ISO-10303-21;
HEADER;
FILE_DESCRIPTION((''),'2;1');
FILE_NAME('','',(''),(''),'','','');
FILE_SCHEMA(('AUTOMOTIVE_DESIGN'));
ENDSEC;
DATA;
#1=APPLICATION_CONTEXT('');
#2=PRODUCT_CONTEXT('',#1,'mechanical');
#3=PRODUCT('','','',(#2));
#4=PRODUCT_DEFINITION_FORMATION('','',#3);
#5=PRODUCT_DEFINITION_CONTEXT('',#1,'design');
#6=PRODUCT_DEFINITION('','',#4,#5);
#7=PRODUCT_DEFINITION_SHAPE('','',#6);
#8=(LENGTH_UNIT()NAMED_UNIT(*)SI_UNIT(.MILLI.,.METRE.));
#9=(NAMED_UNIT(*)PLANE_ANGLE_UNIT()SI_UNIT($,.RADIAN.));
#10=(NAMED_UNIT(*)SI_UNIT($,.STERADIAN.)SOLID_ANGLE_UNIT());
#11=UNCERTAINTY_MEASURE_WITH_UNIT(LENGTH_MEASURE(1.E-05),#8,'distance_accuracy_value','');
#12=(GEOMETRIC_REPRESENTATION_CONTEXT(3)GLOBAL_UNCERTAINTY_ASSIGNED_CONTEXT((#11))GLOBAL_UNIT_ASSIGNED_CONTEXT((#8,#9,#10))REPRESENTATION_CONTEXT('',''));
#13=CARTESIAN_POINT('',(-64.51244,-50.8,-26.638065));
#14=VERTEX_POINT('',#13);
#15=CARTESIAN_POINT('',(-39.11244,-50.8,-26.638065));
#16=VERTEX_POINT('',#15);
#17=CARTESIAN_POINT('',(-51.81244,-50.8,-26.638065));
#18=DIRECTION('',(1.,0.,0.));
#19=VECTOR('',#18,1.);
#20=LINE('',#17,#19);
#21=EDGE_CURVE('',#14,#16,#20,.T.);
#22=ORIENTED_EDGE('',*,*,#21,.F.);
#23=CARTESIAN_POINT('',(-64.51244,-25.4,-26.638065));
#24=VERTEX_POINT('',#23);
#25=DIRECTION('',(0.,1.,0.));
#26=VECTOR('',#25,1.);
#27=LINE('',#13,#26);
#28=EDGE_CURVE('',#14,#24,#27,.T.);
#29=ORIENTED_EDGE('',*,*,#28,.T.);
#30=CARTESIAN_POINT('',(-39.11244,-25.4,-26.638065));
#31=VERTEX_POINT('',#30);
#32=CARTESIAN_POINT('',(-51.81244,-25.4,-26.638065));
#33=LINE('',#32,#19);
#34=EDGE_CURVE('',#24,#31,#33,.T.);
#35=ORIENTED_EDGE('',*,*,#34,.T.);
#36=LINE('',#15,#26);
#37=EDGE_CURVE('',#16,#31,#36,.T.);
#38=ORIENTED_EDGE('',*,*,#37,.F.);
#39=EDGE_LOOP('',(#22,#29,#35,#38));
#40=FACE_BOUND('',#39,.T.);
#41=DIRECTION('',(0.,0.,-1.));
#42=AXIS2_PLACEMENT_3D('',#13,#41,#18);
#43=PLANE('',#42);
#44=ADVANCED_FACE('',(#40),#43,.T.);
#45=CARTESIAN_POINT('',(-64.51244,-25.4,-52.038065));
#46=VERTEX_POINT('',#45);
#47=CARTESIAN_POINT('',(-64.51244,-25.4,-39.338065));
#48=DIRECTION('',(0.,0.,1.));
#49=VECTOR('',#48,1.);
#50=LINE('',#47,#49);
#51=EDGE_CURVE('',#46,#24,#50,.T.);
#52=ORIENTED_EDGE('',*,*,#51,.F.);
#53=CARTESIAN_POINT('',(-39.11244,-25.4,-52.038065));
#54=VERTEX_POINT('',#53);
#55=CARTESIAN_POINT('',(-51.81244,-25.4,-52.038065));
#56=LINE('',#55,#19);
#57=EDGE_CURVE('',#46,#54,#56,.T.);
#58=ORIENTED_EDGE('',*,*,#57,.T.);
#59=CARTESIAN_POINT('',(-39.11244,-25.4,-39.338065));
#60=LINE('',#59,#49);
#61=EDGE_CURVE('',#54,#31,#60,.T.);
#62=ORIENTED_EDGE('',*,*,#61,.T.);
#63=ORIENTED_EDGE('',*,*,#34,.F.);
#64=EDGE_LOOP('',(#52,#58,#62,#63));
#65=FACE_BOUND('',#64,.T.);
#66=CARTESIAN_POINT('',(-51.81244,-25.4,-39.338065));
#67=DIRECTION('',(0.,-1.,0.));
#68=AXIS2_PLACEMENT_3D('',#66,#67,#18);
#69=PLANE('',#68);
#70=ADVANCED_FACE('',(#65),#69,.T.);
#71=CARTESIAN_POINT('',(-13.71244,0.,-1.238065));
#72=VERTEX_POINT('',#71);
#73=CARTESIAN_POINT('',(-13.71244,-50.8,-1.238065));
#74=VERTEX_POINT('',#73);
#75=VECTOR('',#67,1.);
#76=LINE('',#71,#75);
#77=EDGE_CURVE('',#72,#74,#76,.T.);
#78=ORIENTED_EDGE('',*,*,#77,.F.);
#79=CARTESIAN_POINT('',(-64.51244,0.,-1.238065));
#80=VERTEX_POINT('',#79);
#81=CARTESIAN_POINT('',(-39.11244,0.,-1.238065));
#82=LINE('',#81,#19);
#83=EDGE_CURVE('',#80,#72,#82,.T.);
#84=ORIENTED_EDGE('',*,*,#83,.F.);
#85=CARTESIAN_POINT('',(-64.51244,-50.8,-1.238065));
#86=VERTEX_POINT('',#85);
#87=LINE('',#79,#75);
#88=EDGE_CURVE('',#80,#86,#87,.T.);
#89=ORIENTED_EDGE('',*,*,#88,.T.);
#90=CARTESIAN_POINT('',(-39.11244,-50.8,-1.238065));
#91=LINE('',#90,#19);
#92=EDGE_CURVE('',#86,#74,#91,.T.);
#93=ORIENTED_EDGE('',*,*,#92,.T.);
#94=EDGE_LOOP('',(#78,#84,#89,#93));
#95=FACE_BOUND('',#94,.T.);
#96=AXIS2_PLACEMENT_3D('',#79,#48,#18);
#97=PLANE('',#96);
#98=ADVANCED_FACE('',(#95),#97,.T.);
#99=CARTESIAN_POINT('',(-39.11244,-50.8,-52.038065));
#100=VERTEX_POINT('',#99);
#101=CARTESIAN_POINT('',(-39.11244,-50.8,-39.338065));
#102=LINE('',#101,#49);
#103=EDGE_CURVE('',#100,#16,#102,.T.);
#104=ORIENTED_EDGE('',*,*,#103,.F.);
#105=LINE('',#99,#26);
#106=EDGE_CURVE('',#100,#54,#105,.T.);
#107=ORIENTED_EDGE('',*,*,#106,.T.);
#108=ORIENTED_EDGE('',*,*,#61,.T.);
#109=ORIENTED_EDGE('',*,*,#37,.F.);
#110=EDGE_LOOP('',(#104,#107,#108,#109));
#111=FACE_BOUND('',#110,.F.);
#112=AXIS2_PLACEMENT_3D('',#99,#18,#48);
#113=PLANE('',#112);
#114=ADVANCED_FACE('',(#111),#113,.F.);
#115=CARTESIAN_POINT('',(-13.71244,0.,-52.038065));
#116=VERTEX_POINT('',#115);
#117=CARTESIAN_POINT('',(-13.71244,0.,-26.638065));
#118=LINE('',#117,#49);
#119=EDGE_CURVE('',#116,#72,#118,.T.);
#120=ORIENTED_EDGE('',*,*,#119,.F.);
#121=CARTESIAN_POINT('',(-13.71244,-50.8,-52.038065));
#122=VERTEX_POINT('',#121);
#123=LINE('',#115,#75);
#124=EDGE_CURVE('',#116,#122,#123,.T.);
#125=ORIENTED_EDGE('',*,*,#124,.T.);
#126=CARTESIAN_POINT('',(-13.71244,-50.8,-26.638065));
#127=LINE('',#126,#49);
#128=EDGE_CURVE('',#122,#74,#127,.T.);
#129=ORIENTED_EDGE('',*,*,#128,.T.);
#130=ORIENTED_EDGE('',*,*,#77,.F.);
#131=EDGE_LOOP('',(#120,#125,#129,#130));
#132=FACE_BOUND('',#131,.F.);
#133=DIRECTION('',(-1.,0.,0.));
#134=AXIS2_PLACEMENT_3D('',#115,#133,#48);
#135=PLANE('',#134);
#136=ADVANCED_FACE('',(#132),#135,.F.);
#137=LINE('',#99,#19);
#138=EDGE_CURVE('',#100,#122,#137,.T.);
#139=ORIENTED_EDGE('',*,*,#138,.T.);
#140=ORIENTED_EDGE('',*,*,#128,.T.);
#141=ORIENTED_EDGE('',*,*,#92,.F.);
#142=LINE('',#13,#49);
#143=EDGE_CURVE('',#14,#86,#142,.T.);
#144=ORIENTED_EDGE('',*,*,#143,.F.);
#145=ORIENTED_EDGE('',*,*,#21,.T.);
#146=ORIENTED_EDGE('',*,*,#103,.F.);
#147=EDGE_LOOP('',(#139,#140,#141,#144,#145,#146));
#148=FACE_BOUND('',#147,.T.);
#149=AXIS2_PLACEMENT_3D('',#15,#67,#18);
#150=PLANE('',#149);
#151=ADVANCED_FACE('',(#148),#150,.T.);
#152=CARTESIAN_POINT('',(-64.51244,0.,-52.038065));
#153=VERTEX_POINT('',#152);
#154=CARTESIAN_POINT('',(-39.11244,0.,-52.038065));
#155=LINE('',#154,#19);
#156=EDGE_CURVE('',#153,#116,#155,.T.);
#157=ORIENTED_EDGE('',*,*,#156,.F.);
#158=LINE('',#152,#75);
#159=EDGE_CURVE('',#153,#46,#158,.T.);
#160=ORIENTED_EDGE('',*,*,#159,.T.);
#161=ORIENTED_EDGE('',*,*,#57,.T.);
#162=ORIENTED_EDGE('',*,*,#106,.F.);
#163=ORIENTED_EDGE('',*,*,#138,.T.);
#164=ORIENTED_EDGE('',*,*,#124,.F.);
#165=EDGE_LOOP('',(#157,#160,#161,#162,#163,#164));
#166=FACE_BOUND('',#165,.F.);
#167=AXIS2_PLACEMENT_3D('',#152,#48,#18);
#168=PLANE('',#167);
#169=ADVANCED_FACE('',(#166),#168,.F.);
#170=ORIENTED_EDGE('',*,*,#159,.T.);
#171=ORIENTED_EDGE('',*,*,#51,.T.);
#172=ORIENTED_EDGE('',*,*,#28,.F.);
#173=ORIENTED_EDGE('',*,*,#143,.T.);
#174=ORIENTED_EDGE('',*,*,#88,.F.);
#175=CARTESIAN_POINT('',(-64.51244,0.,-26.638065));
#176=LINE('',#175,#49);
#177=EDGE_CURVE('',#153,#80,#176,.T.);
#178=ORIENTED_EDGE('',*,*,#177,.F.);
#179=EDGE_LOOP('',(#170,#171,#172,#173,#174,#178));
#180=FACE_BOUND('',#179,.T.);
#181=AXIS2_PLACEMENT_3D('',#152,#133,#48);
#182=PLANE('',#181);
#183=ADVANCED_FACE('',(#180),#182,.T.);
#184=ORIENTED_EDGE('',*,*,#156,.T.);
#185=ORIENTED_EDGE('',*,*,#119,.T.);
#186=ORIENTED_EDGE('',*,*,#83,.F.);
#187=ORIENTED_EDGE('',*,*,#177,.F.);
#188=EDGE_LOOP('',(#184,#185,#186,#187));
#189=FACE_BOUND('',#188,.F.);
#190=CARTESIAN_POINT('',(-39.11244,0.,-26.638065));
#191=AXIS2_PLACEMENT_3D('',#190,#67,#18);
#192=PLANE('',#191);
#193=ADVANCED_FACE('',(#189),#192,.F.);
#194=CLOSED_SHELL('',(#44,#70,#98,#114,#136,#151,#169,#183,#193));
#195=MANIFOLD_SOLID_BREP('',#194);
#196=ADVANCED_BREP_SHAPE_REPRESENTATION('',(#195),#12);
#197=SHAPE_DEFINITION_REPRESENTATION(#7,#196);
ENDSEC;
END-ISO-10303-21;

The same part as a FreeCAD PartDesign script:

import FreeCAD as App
import Part
import Sketcher
Q = App.Units.Quantity

doc = App.newDocument("Part")
body = doc.addObject("PartDesign::Body", "Body")

# Sketch on XZ plane
sketch1 = body.newObject("Sketcher::SketchObject", "Sketch")
sketch1.AttachmentSupport = (doc.getObject("XZ_Plane"), [""])
sketch1.MapMode = "FlatFace"
sketch1.addGeometry([
    Part.LineSegment(App.Vector(-65, -1, 0), App.Vector(-65, -52, 0)),
    Part.LineSegment(App.Vector(-65, -52, 0), App.Vector(-14, -52, 0)),
    Part.LineSegment(App.Vector(-14, -52, 0), App.Vector(-14, -1, 0)),
    Part.LineSegment(App.Vector(-14, -1, 0), App.Vector(-65, -1, 0)),
], False)
sketch1.addConstraint([
    Sketcher.Constraint("Coincident", 0, 2, 1, 1),
    Sketcher.Constraint("Coincident", 1, 2, 2, 1),
    Sketcher.Constraint("Coincident", 2, 2, 3, 1),
    Sketcher.Constraint("Coincident", 3, 2, 0, 1),
    Sketcher.Constraint("Vertical", 0),
    Sketcher.Constraint("Horizontal", 1),
    Sketcher.Constraint("Vertical", 2),
    Sketcher.Constraint("Horizontal", 3),
    Sketcher.Constraint("Equal", 3, 0),
    Sketcher.Constraint("DistanceX", 1, 1, 1, 2, Q("2 in")),
    Sketcher.Constraint("DistanceX", 0, 2, -1, 1, 64.51244),
    Sketcher.Constraint("DistanceY", 0, 2, -1, 1, 52.038065),
])
pad1 = body.newObject("PartDesign::Pad", "Pad")
pad1.Profile = sketch1
pad1.Length = Q("2 in")

# Sketch on XZ plane
sketch2 = body.newObject("Sketcher::SketchObject", "Sketch001")
sketch2.AttachmentSupport = (doc.getObject("XZ_Plane"), [""])
sketch2.MapMode = "FlatFace"
sketch2.AttachmentOffset = App.Placement(App.Vector(0, 0, 2 * 25.4), App.Rotation())
sketch2.addGeometry([
    Part.LineSegment(App.Vector(-65, -27, 0), App.Vector(-65, -52, 0)),
    Part.LineSegment(App.Vector(-65, -52, 0), App.Vector(-39, -52, 0)),
    Part.LineSegment(App.Vector(-39, -52, 0), App.Vector(-39, -27, 0)),
    Part.LineSegment(App.Vector(-39, -27, 0), App.Vector(-65, -27, 0)),
], False)
sketch2.addConstraint([
    Sketcher.Constraint("Coincident", 0, 2, 1, 1),
    Sketcher.Constraint("Coincident", 1, 2, 2, 1),
    Sketcher.Constraint("Coincident", 2, 2, 3, 1),
    Sketcher.Constraint("Coincident", 3, 2, 0, 1),
    Sketcher.Constraint("Vertical", 0),
    Sketcher.Constraint("Horizontal", 1),
    Sketcher.Constraint("Vertical", 2),
    Sketcher.Constraint("Horizontal", 3),
    Sketcher.Constraint("Equal", 3, 0),
    Sketcher.Constraint("DistanceX", 1, 1, 1, 2, Q("1 in")),
    Sketcher.Constraint("DistanceX", 0, 2, -1, 1, 64.51244),
    Sketcher.Constraint("DistanceY", 0, 2, -1, 1, 52.038065),
])
pocket1 = body.newObject("PartDesign::Pocket", "Pocket")
pocket1.Profile = sketch2
pocket1.Length = Q("1 in")

doc.recompute()
